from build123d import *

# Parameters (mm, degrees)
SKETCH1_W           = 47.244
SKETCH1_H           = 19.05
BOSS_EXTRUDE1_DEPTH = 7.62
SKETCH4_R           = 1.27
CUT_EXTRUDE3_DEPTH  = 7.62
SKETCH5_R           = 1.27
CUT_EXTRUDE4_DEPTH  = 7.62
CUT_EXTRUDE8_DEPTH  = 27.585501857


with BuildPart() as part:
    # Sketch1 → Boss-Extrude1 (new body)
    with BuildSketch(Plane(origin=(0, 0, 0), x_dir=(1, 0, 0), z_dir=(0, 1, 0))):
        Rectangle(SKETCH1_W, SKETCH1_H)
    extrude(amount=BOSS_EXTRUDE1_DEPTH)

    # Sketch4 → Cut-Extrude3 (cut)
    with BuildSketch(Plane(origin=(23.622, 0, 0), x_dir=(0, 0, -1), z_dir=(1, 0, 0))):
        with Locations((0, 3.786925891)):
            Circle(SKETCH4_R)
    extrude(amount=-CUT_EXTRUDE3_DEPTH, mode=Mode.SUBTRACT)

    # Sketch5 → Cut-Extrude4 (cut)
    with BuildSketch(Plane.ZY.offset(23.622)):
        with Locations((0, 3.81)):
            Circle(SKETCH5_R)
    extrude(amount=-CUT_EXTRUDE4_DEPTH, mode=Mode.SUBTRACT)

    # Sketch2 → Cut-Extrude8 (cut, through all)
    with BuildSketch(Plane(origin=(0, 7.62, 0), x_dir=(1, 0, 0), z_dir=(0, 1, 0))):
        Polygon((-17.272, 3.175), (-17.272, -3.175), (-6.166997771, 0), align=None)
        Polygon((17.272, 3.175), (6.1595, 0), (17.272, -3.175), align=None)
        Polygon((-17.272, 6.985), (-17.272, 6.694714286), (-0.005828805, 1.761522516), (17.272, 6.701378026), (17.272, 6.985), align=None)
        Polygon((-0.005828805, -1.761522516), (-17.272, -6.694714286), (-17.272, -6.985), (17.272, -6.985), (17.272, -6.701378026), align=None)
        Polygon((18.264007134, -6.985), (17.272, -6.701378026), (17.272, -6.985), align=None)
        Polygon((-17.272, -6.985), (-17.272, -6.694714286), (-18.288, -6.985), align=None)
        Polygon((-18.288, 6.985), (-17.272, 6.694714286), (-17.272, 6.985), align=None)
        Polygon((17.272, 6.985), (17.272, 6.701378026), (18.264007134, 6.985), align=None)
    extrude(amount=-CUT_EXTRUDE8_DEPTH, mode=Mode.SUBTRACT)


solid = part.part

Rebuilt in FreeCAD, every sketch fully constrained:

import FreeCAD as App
import Part
import Sketcher
from FreeCAD import Vector
Q = App.Units.Quantity

doc = App.newDocument("Part")
body = doc.addObject("PartDesign::Body", "Body")

# Sketch on XZ plane
sketch1 = body.newObject("Sketcher::SketchObject", "Sketch")
sketch1.AttachmentSupport = (doc.getObject("XZ_Plane"), [""])
sketch1.MapMode = "FlatFace"
sketch1.addGeometry(Part.LineSegment(Vector(-24, -10, 0), Vector(-24, 10, 0)), False)
sketch1.addGeometry(Part.LineSegment(Vector(-24, 10, 0), Vector(24, 10, 0)), False)
sketch1.addGeometry(Part.LineSegment(Vector(24, 10, 0), Vector(24, -10, 0)), False)
sketch1.addGeometry(Part.LineSegment(Vector(24, -10, 0), Vector(-24, -10, 0)), False)
sketch1.addConstraint(Sketcher.Constraint("Coincident", 0, 2, 1, 1))
sketch1.addConstraint(Sketcher.Constraint("Coincident", 1, 2, 2, 1))
sketch1.addConstraint(Sketcher.Constraint("Coincident", 2, 2, 3, 1))
sketch1.addConstraint(Sketcher.Constraint("Coincident", 3, 2, 0, 1))
sketch1.addConstraint(Sketcher.Constraint("Vertical", 0))
sketch1.addConstraint(Sketcher.Constraint("Horizontal", 1))
sketch1.addConstraint(Sketcher.Constraint("Vertical", 2))
sketch1.addConstraint(Sketcher.Constraint("Horizontal", 3))
sketch1.addConstraint(Sketcher.Constraint("Symmetric", 0, 2, 2, 2, -1, 1))
sketch1.addConstraint(Sketcher.Constraint("DistanceX", 1, 1, 1, 2, Q("1.86 in")))
sketch1.addConstraint(Sketcher.Constraint("DistanceY", 0, 1, 0, 2, Q("0.75 in")))
pad1 = body.newObject("PartDesign::Pad", "Pad")
pad1.Profile = sketch1
pad1.Length = Q("0.3 in")
pad1.Reversed = True

# Sketch on YZ plane
sketch2 = body.newObject("Sketcher::SketchObject", "Sketch001")
sketch2.AttachmentSupport = (doc.getObject("YZ_Plane"), [""])
sketch2.MapMode = "FlatFace"
sketch2.AttachmentOffset = App.Placement(Vector(0, 0, 0.93 * 25.4), App.Rotation())
sketch2.addGeometry(Part.Circle(Vector(3.8, 0, 0), Vector(0, 0, 1), 1.3), False)
sketch2.addConstraint(Sketcher.Constraint("PointOnObject", 0, 3, -1))
sketch2.addConstraint(Sketcher.Constraint("Diameter", 0, Q("0.1 in")))
sketch2.addConstraint(Sketcher.Constraint("DistanceX", -1, 1, 0, 3, 3.786926))
pocket1 = body.newObject("PartDesign::Pocket", "Pocket")
pocket1.Profile = sketch2
pocket1.Length = Q("0.3 in")

# Sketch on YZ plane
sketch3 = body.newObject("Sketcher::SketchObject", "Sketch002")
sketch3.AttachmentSupport = (doc.getObject("YZ_Plane"), [""])
sketch3.MapMode = "FlatFace"
sketch3.AttachmentOffset = App.Placement(Vector(0, 0, -0.93 * 25.4), App.Rotation())
sketch3.addGeometry(Part.Circle(Vector(3.8, 0, 0), Vector(0, 0, 1), 1.3), False)
sketch3.addConstraint(Sketcher.Constraint("PointOnObject", 0, 3, -1))
sketch3.addConstraint(Sketcher.Constraint("Diameter", 0, Q("0.1 in")))
sketch3.addConstraint(Sketcher.Constraint("DistanceX", -1, 1, 0, 3, Q("0.15 in")))
pocket2 = body.newObject("PartDesign::Pocket", "Pocket001")
pocket2.Profile = sketch3
pocket2.Length = Q("0.3 in")
pocket2.Reversed = True

# Sketch on XZ plane
sketch4 = body.newObject("Sketcher::SketchObject", "Sketch003")
sketch4.AttachmentSupport = (doc.getObject("XZ_Plane"), [""])
sketch4.MapMode = "FlatFace"
sketch4.AttachmentOffset = App.Placement(Vector(0, 0, -0.3 * 25.4), App.Rotation())
sketch4.addGeometry(Part.LineSegment(Vector(-17.3, -3.2, 0), Vector(-17.3, 3.2, 0)), False)
sketch4.addGeometry(Part.LineSegment(Vector(-17.3, 3.2, 0), Vector(-6.2, 0, 0)), False)
sketch4.addGeometry(Part.LineSegment(Vector(-6.2, 0, 0), Vector(-17.3, -3.2, 0)), False)
sketch4.addGeometry(Part.LineSegment(Vector(17.3, -3.2, 0), Vector(6.2, 0, 0)), False)
sketch4.addGeometry(Part.LineSegment(Vector(6.2, 0, 0), Vector(17.3, 3.2, 0)), False)
sketch4.addGeometry(Part.LineSegment(Vector(17.3, 3.2, 0), Vector(17.3, -3.2, 0)), False)
sketch4.addGeometry(Part.LineSegment(Vector(-17.3, -6.7, 0), Vector(0, -1.8, 0)), False)
sketch4.addGeometry(Part.LineSegment(Vector(0, -1.8, 0), Vector(17.3, -6.7, 0)), False)
sketch4.addGeometry(Part.LineSegment(Vector(17.3, -6.7, 0), Vector(18.3, -7, 0)), False)
sketch4.addGeometry(Part.LineSegment(Vector(18.3, -7, 0), Vector(-18.3, -7, 0)), False)
sketch4.addGeometry(Part.LineSegment(Vector(-18.3, -7, 0), Vector(-17.3, -6.7, 0)), False)
sketch4.addGeometry(Part.LineSegment(Vector(0, 1.8, 0), Vector(-17.3, 6.7, 0)), False)
sketch4.addGeometry(Part.LineSegment(Vector(-17.3, 6.7, 0), Vector(-18.3, 7, 0)), False)
sketch4.addGeometry(Part.LineSegment(Vector(-18.3, 7, 0), Vector(18.3, 7, 0)), False)
sketch4.addGeometry(Part.LineSegment(Vector(18.3, 7, 0), Vector(17.3, 6.7, 0)), False)
sketch4.addGeometry(Part.LineSegment(Vector(17.3, 6.7, 0), Vector(0, 1.8, 0)), False)
sketch4.addConstraint(Sketcher.Constraint("Coincident", 0, 2, 1, 1))
sketch4.addConstraint(Sketcher.Constraint("Coincident", 1, 2, 2, 1))
sketch4.addConstraint(Sketcher.Constraint("Coincident", 2, 2, 0, 1))
sketch4.addConstraint(Sketcher.Constraint("Coincident", 3, 2, 4, 1))
sketch4.addConstraint(Sketcher.Constraint("Coincident", 4, 2, 5, 1))
sketch4.addConstraint(Sketcher.Constraint("Coincident", 5, 2, 3, 1))
sketch4.addConstraint(Sketcher.Constraint("Coincident", 6, 2, 7, 1))
sketch4.addConstraint(Sketcher.Constraint("Coincident", 7, 2, 8, 1))
sketch4.addConstraint(Sketcher.Constraint("Coincident", 8, 2, 9, 1))
sketch4.addConstraint(Sketcher.Constraint("Coincident", 9, 2, 10, 1))
sketch4.addConstraint(Sketcher.Constraint("Coincident", 10, 2, 6, 1))
sketch4.addConstraint(Sketcher.Constraint("Coincident", 11, 2, 12, 1))
sketch4.addConstraint(Sketcher.Constraint("Coincident", 12, 2, 13, 1))
sketch4.addConstraint(Sketcher.Constraint("Coincident", 13, 2, 14, 1))
sketch4.addConstraint(Sketcher.Constraint("Coincident", 14, 2, 15, 1))
sketch4.addConstraint(Sketcher.Constraint("Coincident", 15, 2, 11, 1))
sketch4.addConstraint(Sketcher.Constraint("Vertical", 0))
sketch4.addConstraint(Sketcher.Constraint("Vertical", 5))
sketch4.addConstraint(Sketcher.Constraint("Horizontal", 9))
sketch4.addConstraint(Sketcher.Constraint("Horizontal", 13))
sketch4.addConstraint(Sketcher.Constraint("Symmetric", 2, 2, 4, 2, -1, 1))
sketch4.addConstraint(Sketcher.Constraint("Symmetric", 10, 2, 11, 2, -1))
sketch4.addConstraint(Sketcher.Constraint("Symmetric", 9, 2, 12, 2, -1))
sketch4.addConstraint(Sketcher.Constraint("Symmetric", 7, 2, 14, 2, -1))
sketch4.addConstraint(Sketcher.Constraint("Symmetric", 6, 2, 15, 2, -1))
sketch4.addConstraint(Sketcher.Constraint("PointOnObject", 1, 2, -1))
sketch4.addConstraint(Sketcher.Constraint("PointOnObject", 3, 2, -1))
sketch4.addConstraint(Sketcher.Constraint("Parallel", 4, 6))
sketch4.addConstraint(Sketcher.Constraint("Parallel", 1, 7))
sketch4.addConstraint(Sketcher.Constraint("Parallel", 7, 8))
sketch4.addConstraint(Sketcher.Constraint("Parallel", 6, 10))
sketch4.addConstraint(Sketcher.Constraint("Parallel", 3, 11))
sketch4.addConstraint(Sketcher.Constraint("Parallel", 2, 14))
sketch4.addConstraint(Sketcher.Constraint("Parallel", 14, 15))
sketch4.addConstraint(Sketcher.Constraint("Vertical", 5, 2, 7, 2))
sketch4.addConstraint(Sketcher.Constraint("Vertical", 2, 2, 10, 2))
sketch4.addConstraint(Sketcher.Constraint("DistanceY", 0, 1, 0, 2, Q("0.25 in")))
sketch4.addConstraint(Sketcher.Constraint("DistanceY", 8, 2, 4, 2, Q("0.4 in")))
sketch4.addConstraint(Sketcher.Constraint("DistanceX", 0, 2, -1, 1, Q("0.68 in")))
sketch4.addConstraint(Sketcher.Constraint("DistanceX", 9, 2, -1, 1, Q("0.72 in")))
sketch4.addConstraint(Sketcher.Constraint("DistanceX", 3, 2, 4, 2, Q("0.4375 in")))
sketch4.addConstraint(Sketcher.Constraint("Distance", 6, 17.957089))
sketch4.addConstraint(Sketcher.Constraint("Distance", 7, 17.970129))
pocket3 = body.newObject("PartDesign::Pocket", "Pocket002")
pocket3.Profile = sketch4
pocket3.Type = "ThroughAll"
pocket3.Reversed = True

doc.recompute()
